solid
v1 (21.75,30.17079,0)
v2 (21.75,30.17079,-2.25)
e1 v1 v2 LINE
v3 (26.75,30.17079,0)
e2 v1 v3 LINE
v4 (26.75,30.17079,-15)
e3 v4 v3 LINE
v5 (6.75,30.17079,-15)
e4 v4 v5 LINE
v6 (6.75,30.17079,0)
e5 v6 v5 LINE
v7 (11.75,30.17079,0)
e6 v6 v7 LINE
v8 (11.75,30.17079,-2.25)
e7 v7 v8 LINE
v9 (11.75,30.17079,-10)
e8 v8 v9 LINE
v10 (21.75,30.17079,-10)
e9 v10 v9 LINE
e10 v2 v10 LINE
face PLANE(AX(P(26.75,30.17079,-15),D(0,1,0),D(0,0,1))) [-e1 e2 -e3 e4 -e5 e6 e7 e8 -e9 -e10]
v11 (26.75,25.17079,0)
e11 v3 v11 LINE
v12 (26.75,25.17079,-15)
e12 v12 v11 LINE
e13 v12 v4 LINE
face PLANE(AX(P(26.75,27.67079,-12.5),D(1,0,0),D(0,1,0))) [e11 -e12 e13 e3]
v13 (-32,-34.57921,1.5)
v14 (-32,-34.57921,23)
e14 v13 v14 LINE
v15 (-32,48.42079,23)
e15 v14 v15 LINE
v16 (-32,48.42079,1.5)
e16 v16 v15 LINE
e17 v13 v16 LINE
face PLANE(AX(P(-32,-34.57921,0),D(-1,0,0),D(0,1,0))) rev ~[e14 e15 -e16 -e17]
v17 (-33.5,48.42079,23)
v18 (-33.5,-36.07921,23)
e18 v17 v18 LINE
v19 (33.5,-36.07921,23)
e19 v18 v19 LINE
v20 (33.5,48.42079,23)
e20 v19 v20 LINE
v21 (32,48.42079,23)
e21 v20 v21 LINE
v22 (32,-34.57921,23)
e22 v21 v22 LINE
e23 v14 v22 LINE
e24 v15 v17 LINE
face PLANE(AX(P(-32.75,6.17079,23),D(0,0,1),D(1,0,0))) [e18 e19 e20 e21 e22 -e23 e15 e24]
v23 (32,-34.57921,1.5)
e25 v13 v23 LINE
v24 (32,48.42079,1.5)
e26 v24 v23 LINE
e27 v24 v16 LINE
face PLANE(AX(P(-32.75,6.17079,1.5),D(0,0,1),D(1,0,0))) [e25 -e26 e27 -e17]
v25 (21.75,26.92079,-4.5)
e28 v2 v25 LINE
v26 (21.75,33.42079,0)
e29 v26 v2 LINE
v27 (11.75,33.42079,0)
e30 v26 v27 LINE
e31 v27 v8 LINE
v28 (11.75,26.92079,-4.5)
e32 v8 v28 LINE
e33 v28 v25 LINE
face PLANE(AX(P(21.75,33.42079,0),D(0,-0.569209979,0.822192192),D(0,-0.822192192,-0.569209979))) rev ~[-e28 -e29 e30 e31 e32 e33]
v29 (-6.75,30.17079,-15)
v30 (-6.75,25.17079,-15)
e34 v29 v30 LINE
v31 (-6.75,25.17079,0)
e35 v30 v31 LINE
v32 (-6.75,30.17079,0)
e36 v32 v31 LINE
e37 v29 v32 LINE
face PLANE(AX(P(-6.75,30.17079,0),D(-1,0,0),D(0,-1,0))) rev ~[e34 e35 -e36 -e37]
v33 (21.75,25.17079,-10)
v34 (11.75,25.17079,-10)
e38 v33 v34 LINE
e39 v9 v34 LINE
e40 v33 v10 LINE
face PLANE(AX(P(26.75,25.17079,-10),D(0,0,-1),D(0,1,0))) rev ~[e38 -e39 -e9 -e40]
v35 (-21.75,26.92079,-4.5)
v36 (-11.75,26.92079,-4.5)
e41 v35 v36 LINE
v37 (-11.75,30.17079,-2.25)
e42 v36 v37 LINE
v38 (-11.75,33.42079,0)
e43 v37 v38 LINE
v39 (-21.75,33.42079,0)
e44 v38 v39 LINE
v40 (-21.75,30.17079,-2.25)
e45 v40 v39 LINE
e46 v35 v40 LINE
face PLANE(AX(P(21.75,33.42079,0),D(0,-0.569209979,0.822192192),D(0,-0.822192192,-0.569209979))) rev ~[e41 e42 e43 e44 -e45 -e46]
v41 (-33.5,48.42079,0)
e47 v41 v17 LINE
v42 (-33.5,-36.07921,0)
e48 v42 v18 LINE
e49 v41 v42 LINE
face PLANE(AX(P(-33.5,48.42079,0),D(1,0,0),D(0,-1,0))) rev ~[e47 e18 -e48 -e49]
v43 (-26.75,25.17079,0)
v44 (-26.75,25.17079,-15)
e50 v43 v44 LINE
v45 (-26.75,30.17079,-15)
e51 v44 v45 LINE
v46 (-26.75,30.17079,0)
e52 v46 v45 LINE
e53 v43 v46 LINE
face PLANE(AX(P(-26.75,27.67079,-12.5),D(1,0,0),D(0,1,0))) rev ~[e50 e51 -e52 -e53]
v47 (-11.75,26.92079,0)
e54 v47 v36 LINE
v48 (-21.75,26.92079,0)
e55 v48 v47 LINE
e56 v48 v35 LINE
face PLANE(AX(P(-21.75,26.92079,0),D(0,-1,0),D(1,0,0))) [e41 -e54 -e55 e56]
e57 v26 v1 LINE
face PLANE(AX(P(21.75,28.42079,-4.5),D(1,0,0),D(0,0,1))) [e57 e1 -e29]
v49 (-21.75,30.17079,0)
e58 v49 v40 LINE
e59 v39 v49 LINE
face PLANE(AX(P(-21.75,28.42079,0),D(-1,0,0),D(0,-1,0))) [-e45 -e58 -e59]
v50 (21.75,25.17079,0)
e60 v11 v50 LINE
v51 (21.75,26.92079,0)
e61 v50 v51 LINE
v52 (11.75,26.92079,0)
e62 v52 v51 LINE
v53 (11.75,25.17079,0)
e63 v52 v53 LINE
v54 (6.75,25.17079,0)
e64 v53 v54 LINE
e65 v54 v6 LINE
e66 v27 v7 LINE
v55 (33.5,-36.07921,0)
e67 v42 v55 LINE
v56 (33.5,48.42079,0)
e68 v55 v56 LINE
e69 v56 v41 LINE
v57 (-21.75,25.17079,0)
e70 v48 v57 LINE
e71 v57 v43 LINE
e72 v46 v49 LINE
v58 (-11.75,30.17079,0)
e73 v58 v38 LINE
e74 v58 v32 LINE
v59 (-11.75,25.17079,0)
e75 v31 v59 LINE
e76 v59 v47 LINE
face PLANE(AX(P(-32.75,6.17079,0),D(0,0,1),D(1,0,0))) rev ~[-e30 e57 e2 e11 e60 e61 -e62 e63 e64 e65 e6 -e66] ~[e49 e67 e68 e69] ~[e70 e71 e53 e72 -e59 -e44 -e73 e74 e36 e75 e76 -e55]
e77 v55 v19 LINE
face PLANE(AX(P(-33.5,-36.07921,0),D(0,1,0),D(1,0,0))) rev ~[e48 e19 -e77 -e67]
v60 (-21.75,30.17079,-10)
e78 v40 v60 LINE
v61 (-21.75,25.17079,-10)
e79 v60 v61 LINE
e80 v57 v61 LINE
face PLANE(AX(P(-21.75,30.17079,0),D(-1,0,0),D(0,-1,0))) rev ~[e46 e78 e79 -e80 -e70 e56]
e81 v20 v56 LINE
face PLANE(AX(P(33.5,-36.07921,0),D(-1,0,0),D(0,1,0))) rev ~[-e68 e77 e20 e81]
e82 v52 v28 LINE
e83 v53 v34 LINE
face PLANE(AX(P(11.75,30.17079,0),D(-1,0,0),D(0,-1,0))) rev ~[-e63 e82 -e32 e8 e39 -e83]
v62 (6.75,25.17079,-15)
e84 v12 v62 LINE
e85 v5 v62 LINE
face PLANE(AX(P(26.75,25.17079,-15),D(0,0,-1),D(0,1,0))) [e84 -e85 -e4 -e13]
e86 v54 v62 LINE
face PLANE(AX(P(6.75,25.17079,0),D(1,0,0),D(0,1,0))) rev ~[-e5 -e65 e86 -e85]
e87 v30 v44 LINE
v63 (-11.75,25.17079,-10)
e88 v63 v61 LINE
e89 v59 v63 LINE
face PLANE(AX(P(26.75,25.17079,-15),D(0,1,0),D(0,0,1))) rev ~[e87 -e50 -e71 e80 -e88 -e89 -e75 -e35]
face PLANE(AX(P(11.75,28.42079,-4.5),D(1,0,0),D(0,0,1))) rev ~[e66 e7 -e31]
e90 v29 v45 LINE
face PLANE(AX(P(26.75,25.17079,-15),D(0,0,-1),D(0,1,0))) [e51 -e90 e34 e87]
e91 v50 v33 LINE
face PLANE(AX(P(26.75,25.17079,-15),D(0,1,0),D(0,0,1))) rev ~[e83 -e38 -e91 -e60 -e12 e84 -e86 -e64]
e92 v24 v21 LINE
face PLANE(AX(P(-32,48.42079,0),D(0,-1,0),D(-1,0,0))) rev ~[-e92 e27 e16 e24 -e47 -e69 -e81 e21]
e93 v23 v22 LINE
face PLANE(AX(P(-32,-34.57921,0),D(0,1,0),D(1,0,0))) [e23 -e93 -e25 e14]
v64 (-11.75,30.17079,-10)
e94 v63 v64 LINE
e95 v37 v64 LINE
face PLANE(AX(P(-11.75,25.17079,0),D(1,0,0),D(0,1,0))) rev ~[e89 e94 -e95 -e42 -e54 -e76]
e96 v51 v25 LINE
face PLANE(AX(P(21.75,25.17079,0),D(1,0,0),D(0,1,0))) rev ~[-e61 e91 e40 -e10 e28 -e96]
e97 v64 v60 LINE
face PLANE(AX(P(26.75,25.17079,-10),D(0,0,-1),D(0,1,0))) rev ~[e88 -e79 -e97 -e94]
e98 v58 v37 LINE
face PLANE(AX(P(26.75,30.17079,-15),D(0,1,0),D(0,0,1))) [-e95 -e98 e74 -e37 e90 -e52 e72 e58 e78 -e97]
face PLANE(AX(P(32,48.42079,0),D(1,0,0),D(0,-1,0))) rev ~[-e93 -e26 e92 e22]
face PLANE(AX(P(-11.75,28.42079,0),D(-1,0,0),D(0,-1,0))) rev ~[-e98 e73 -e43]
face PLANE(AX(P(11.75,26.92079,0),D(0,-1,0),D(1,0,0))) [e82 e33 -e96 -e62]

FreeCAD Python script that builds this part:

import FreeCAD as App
import Part
import Sketcher
Q = App.Units.Quantity

doc = App.newDocument("Part")
body = doc.addObject("PartDesign::Body", "Body")

# Sketch on XY plane
sketch1 = body.newObject("Sketcher::SketchObject", "Sketch")
sketch1.AttachmentSupport = (doc.getObject("XY_Plane"), [""])
sketch1.MapMode = "FlatFace"
sketch1.addGeometry([
    Part.LineSegment(App.Vector(-32, 48.4, 0), App.Vector(-33.5, 48.4, 0)),  # 0
    Part.LineSegment(App.Vector(-33.5, 48.4, 0), App.Vector(-33.5, -36.1, 0)),  # 1
    Part.LineSegment(App.Vector(-33.5, -36.1, 0), App.Vector(33.5, -36.1, 0)),  # 2
    Part.LineSegment(App.Vector(33.5, -36.1, 0), App.Vector(33.5, 48.4, 0)),  # 3
    Part.LineSegment(App.Vector(33.5, 48.4, 0), App.Vector(32, 48.4, 0)),  # 4
    Part.LineSegment(App.Vector(32, 48.4, 0), App.Vector(32, -34.6, 0)),  # 5
    Part.LineSegment(App.Vector(32, -34.6, 0), App.Vector(-32, -34.6, 0)),  # 6
    Part.LineSegment(App.Vector(-32, -34.6, 0), App.Vector(-32, 48.4, 0)),  # 7
], False)
sketch1.addConstraint([
    Sketcher.Constraint("Coincident", 0, 2, 1, 1),
    Sketcher.Constraint("Coincident", 1, 2, 2, 1),
    Sketcher.Constraint("Coincident", 2, 2, 3, 1),
    Sketcher.Constraint("Coincident", 3, 2, 4, 1),
    Sketcher.Constraint("Coincident", 4, 2, 5, 1),
    Sketcher.Constraint("Coincident", 5, 2, 6, 1),
    Sketcher.Constraint("Coincident", 6, 2, 7, 1),
    Sketcher.Constraint("Coincident", 7, 2, 0, 1),
    Sketcher.Constraint("Horizontal", 0),
    Sketcher.Constraint("Vertical", 1),
    Sketcher.Constraint("Horizontal", 2),
    Sketcher.Constraint("Vertical", 3),
    Sketcher.Constraint("Horizontal", 4),
    Sketcher.Constraint("Vertical", 5),
    Sketcher.Constraint("Horizontal", 6),
    Sketcher.Constraint("Vertical", 7),
    Sketcher.Constraint("Symmetric", 0, 2, 3, 2, -2),
    Sketcher.Constraint("Equal", 0, 4),
    Sketcher.Constraint("DistanceX", 2, 1, 2, 2, Q("67 mm")),
    Sketcher.Constraint("DistanceX", 6, 2, 6, 1, Q("64 mm")),
    Sketcher.Constraint("DistanceY", 5, 2, 5, 1, Q("83 mm")),
    Sketcher.Constraint("DistanceY", 1, 2, 1, 1, Q("84.5 mm")),
    Sketcher.Constraint("DistanceY", -1, 1, 0, 2, Q("48.42079 mm")),
])
pad1 = body.newObject("PartDesign::Pad", "Pad")
pad1.Profile = sketch1
pad1.Length = 23

# Sketch on XY plane
sketch2 = body.newObject("Sketcher::SketchObject", "Sketch001")
sketch2.AttachmentSupport = (doc.getObject("XY_Plane"), [""])
sketch2.MapMode = "FlatFace"
sketch2.addGeometry([
    Part.LineSegment(App.Vector(-34, 48, 0), App.Vector(-34, -36, 0)),
    Part.LineSegment(App.Vector(-34, -36, 0), App.Vector(34, -36, 0)),
    Part.LineSegment(App.Vector(34, -36, 0), App.Vector(34, 48, 0)),
    Part.LineSegment(App.Vector(34, 48, 0), App.Vector(-34, 48, 0)),
], False)
sketch2.addConstraint([
    Sketcher.Constraint("Coincident", 0, 2, 1, 1),
    Sketcher.Constraint("Coincident", 1, 2, 2, 1),
    Sketcher.Constraint("Coincident", 2, 2, 3, 1),
    Sketcher.Constraint("Coincident", 3, 2, 0, 1),
    Sketcher.Constraint("Vertical", 0),
    Sketcher.Constraint("Horizontal", 1),
    Sketcher.Constraint("Vertical", 2),
    Sketcher.Constraint("Horizontal", 3),
    Sketcher.Constraint("DistanceX", 1, 1, 1, 2, Q("67 mm")),
    Sketcher.Constraint("DistanceY", 0, 2, 0, 1, Q("84.5 mm")),
    Sketcher.Constraint("DistanceX", 0, 2, -1, 1, Q("33.5 mm")),
    Sketcher.Constraint("DistanceY", 0, 2, -1, 1, Q("36.07921 mm")),
])
pad2 = body.newObject("PartDesign::Pad", "Pad001")
pad2.Profile = sketch2
pad2.Length = 1.5

# Sketch on XY plane
sketch3 = body.newObject("Sketcher::SketchObject", "Sketch002")
sketch3.AttachmentSupport = (doc.getObject("XY_Plane"), [""])
sketch3.MapMode = "FlatFace"
sketch3.addGeometry([
    Part.LineSegment(App.Vector(11.8, 26.9, 0), App.Vector(11.8, 28.4, 0)),  # 0
    Part.LineSegment(App.Vector(11.8, 28.4, 0), App.Vector(21.8, 28.4, 0)),  # 1
    Part.LineSegment(App.Vector(21.8, 28.4, 0), App.Vector(21.8, 26.9, 0)),  # 2
    Part.LineSegment(App.Vector(21.8, 26.9, 0), App.Vector(11.8, 26.9, 0)),  # 3
    Part.LineSegment(App.Vector(-21.8, 26.9, 0), App.Vector(-21.8, 28.4, 0)),  # 4
    Part.LineSegment(App.Vector(-21.8, 28.4, 0), App.Vector(-11.8, 28.4, 0)),  # 5
    Part.LineSegment(App.Vector(-11.8, 28.4, 0), App.Vector(-11.8, 26.9, 0)),  # 6
    Part.LineSegment(App.Vector(-11.8, 26.9, 0), App.Vector(-21.8, 26.9, 0)),  # 7
], False)
sketch3.addConstraint([
    Sketcher.Constraint("Coincident", 0, 2, 1, 1),
    Sketcher.Constraint("Coincident", 1, 2, 2, 1),
    Sketcher.Constraint("Coincident", 2, 2, 3, 1),
    Sketcher.Constraint("Coincident", 3, 2, 0, 1),
    Sketcher.Constraint("Coincident", 4, 2, 5, 1),
    Sketcher.Constraint("Coincident", 5, 2, 6, 1),
    Sketcher.Constraint("Coincident", 6, 2, 7, 1),
    Sketcher.Constraint("Coincident", 7, 2, 4, 1),
    Sketcher.Constraint("Vertical", 0),
    Sketcher.Constraint("Horizontal", 1),
    Sketcher.Constraint("Vertical", 2),
    Sketcher.Constraint("Horizontal", 3),
    Sketcher.Constraint("Vertical", 4),
    Sketcher.Constraint("Horizontal", 5),
    Sketcher.Constraint("Vertical", 6),
    Sketcher.Constraint("Horizontal", 7),
    Sketcher.Constraint("Symmetric", 1, 2, 4, 2, -2),
    Sketcher.Constraint("Symmetric", 3, 2, 6, 2, -2),
    Sketcher.Constraint("DistanceX", 1, 1, 1, 2, Q("10 mm")),
    Sketcher.Constraint("DistanceY", 0, 1, 0, 2, Q("1.5 mm")),
    Sketcher.Constraint("DistanceX", 4, 2, 0, 2, Q("33.5 mm")),
    Sketcher.Constraint("DistanceY", -1, 1, 0, 2, Q("28.42079 mm")),
])
pad3 = body.newObject("PartDesign::Pad", "Pad002")
pad3.Profile = sketch3
pad3.Length = 4.5
pad3.Reversed = True

# Sketch on XZ plane
sketch4 = body.newObject("Sketcher::SketchObject", "Sketch003")
sketch4.AttachmentSupport = (doc.getObject("XZ_Plane"), [""])
sketch4.MapMode = "FlatFace"
sketch4.AttachmentOffset = App.Placement(App.Vector(0, 0, -28.42079), App.Rotation())
sketch4.addGeometry([
    Part.LineSegment(App.Vector(21.8, 0, 0), App.Vector(21.8, -4.5, 0)),  # 0
    Part.LineSegment(App.Vector(21.8, -4.5, 0), App.Vector(11.8, -4.5, 0)),  # 1
    Part.LineSegment(App.Vector(11.8, -4.5, 0), App.Vector(11.8, 0, 0)),  # 2
    Part.LineSegment(App.Vector(11.8, 0, 0), App.Vector(21.8, 0, 0)),  # 3
    Part.LineSegment(App.Vector(-11.8, 0, 0), App.Vector(-11.8, -4.5, 0)),  # 4
    Part.LineSegment(App.Vector(-11.8, -4.5, 0), App.Vector(-21.8, -4.5, 0)),  # 5
    Part.LineSegment(App.Vector(-21.8, -4.5, 0), App.Vector(-21.8, 0, 0)),  # 6
    Part.LineSegment(App.Vector(-21.8, 0, 0), App.Vector(-11.8, 0, 0)),  # 7
], False)
sketch4.addConstraint([
    Sketcher.Constraint("Coincident", 0, 2, 1, 1),
    Sketcher.Constraint("Coincident", 1, 2, 2, 1),
    Sketcher.Constraint("Coincident", 2, 2, 3, 1),
    Sketcher.Constraint("Coincident", 3, 2, 0, 1),
    Sketcher.Constraint("Coincident", 4, 2, 5, 1),
    Sketcher.Constraint("Coincident", 5, 2, 6, 1),
    Sketcher.Constraint("Coincident", 6, 2, 7, 1),
    Sketcher.Constraint("Coincident", 7, 2, 4, 1),
    Sketcher.Constraint("Vertical", 0),
    Sketcher.Constraint("Horizontal", 1),
    Sketcher.Constraint("Vertical", 2),
    Sketcher.Constraint("Horizontal", 3),
    Sketcher.Constraint("Vertical", 4),
    Sketcher.Constraint("Horizontal", 5),
    Sketcher.Constraint("Vertical", 6),
    Sketcher.Constraint("Horizontal", 7),
    Sketcher.Constraint("Symmetric", 3, 2, 6, 2, -1, 1),
    Sketcher.Constraint("Symmetric", 1, 2, 4, 2, -2),
    Sketcher.Constraint("PointOnObject", 2, 2, -1),
    Sketcher.Constraint("DistanceX", 1, 2, 1, 1, Q("10 mm")),
    Sketcher.Constraint("DistanceY", 0, 2, 0, 1, Q("4.5 mm")),
    Sketcher.Constraint("DistanceX", 4, 2, 1, 2, Q("23.5 mm")),
])
pad4 = body.newObject("PartDesign::Pad", "Pad003")
pad4.Profile = sketch4
pad4.Length = 5
pad4.Reversed = True

# Sketch on YZ plane
sketch5 = body.newObject("Sketcher::SketchObject", "Sketch004")
sketch5.AttachmentSupport = (doc.getObject("YZ_Plane"), [""])
sketch5.MapMode = "FlatFace"
sketch5.AttachmentOffset = App.Placement(App.Vector(0, 0, 21.75), App.Rotation())
sketch5.addGeometry([
    Part.LineSegment(App.Vector(33.4, -4.5, 0), App.Vector(33.4, 0, 0)),
    Part.LineSegment(App.Vector(33.4, 0, 0), App.Vector(26.9, -4.5, 0)),
    Part.LineSegment(App.Vector(26.9, -4.5, 0), App.Vector(33.4, -4.5, 0)),
], False)
sketch5.addConstraint([
    Sketcher.Constraint("Coincident", 0, 2, 1, 1),
    Sketcher.Constraint("Coincident", 1, 2, 2, 1),
    Sketcher.Constraint("Coincident", 2, 2, 0, 1),
    Sketcher.Constraint("Vertical", 0),
    Sketcher.Constraint("Horizontal", 2),
    Sketcher.Constraint("PointOnObject", 0, 2, -1),
    Sketcher.Constraint("DistanceX", 2, 1, 2, 2, Q("6.5 mm")),
    Sketcher.Constraint("DistanceY", 0, 1, 0, 2, Q("4.5 mm")),
    Sketcher.Constraint("DistanceX", -1, 1, 0, 2, Q("33.42079 mm")),
])
pocket1 = body.newObject("PartDesign::Pocket", "Pocket")
pocket1.Profile = sketch5
pocket1.Length = 50

# Sketch on XY plane
sketch6 = body.newObject("Sketcher::SketchObject", "Sketch005")
sketch6.AttachmentSupport = (doc.getObject("XY_Plane"), [""])
sketch6.MapMode = "FlatFace"
sketch6.addGeometry([
    Part.LineSegment(App.Vector(-22, 25, 0), App.Vector(-27, 25, 0)),  # 0
    Part.LineSegment(App.Vector(-27, 25, 0), App.Vector(-27, 30, 0)),  # 1
    Part.LineSegment(App.Vector(-27, 30, 0), App.Vector(-22, 30, 0)),  # 2
    Part.LineSegment(App.Vector(-22, 30, 0), App.Vector(-22, 25, 0)),  # 3
    Part.LineSegment(App.Vector(-12, 25, 0), App.Vector(-12, 30, 0)),  # 4
    Part.LineSegment(App.Vector(-12, 30, 0), App.Vector(-7, 30, 0)),  # 5
    Part.LineSegment(App.Vector(-7, 30, 0), App.Vector(-7, 25, 0)),  # 6
    Part.LineSegment(App.Vector(-7, 25, 0), App.Vector(-12, 25, 0)),  # 7
    Part.LineSegment(App.Vector(12, 25, 0), App.Vector(7, 25, 0)),  # 8
    Part.LineSegment(App.Vector(7, 25, 0), App.Vector(7, 30, 0)),  # 9
    Part.LineSegment(App.Vector(7, 30, 0), App.Vector(12, 30, 0)),  # 10
    Part.LineSegment(App.Vector(12, 30, 0), App.Vector(12, 25, 0)),  # 11
    Part.LineSegment(App.Vector(22, 25, 0), App.Vector(22, 30, 0)),  # 12
    Part.LineSegment(App.Vector(22, 30, 0), App.Vector(27, 30, 0)),  # 13
    Part.LineSegment(App.Vector(27, 30, 0), App.Vector(27, 25, 0)),  # 14
    Part.LineSegment(App.Vector(27, 25, 0), App.Vector(22, 25, 0)),  # 15
], False)
sketch6.addConstraint([
    Sketcher.Constraint("Coincident", 0, 2, 1, 1),
    Sketcher.Constraint("Coincident", 1, 2, 2, 1),
    Sketcher.Constraint("Coincident", 2, 2, 3, 1),
    Sketcher.Constraint("Coincident", 3, 2, 0, 1),
    Sketcher.Constraint("Coincident", 4, 2, 5, 1),
    Sketcher.Constraint("Coincident", 5, 2, 6, 1),
    Sketcher.Constraint("Coincident", 6, 2, 7, 1),
    Sketcher.Constraint("Coincident", 7, 2, 4, 1),
    Sketcher.Constraint("Coincident", 8, 2, 9, 1),
    Sketcher.Constraint("Coincident", 9, 2, 10, 1),
    Sketcher.Constraint("Coincident", 10, 2, 11, 1),
    Sketcher.Constraint("Coincident", 11, 2, 8, 1),
    Sketcher.Constraint("Coincident", 12, 2, 13, 1),
    Sketcher.Constraint("Coincident", 13, 2, 14, 1),
    Sketcher.Constraint("Coincident", 14, 2, 15, 1),
    Sketcher.Constraint("Coincident", 15, 2, 12, 1),
    Sketcher.Constraint("Horizontal", 0),
    Sketcher.Constraint("Vertical", 1),
    Sketcher.Constraint("Horizontal", 2),
    Sketcher.Constraint("Vertical", 3),
    Sketcher.Constraint("Vertical", 4),
    Sketcher.Constraint("Horizontal", 5),
    Sketcher.Constraint("Vertical", 6),
    Sketcher.Constraint("Horizontal", 7),
    Sketcher.Constraint("Horizontal", 8),
    Sketcher.Constraint("Vertical", 9),
    Sketcher.Constraint("Horizontal", 10),
    Sketcher.Constraint("Vertical", 11),
    Sketcher.Constraint("Vertical", 12),
    Sketcher.Constraint("Horizontal", 13),
    Sketcher.Constraint("Vertical", 14),
    Sketcher.Constraint("Horizontal", 15),
    Sketcher.Constraint("Symmetric", 6, 2, 8, 2, -2),
    Sketcher.Constraint("Symmetric", 4, 2, 10, 2, -2),
    Sketcher.Constraint("Symmetric", 2, 2, 12, 2, -2),
    Sketcher.Constraint("Symmetric", 0, 2, 14, 2, -2),
    Sketcher.Constraint("Horizontal", 2, 2, 4, 2),
    Sketcher.Constraint("Horizontal", 3, 2, 6, 2),
    Sketcher.Constraint("Equal", 2, 5),
    Sketcher.Constraint("Equal", 15, 1),
    Sketcher.Constraint("DistanceX", 0, 2, 0, 1, Q("5 mm")),
    Sketcher.Constraint("DistanceX", 2, 2, 4, 2, Q("10 mm")),
    Sketcher.Constraint("DistanceX", 6, 2, 8, 2, Q("13.5 mm")),
    Sketcher.Constraint("DistanceY", -1, 1, 0, 2, Q("25.17079 mm")),
])
pad5 = body.newObject("PartDesign::Pad", "Pad004")
pad5.Profile = sketch6
pad5.Length = 10
pad5.Reversed = True

# Sketch on YZ plane
sketch7 = body.newObject("Sketcher::SketchObject", "Sketch006")
sketch7.AttachmentSupport = (doc.getObject("YZ_Plane"), [""])
sketch7.MapMode = "FlatFace"
sketch7.AttachmentOffset = App.Placement(App.Vector(0, 0, 26.75), App.Rotation())
sketch7.addGeometry([
    Part.LineSegment(App.Vector(25, -10, 0), App.Vector(25, -15, 0)),
    Part.LineSegment(App.Vector(25, -15, 0), App.Vector(30, -15, 0)),
    Part.LineSegment(App.Vector(30, -15, 0), App.Vector(30, -10, 0)),
    Part.LineSegment(App.Vector(30, -10, 0), App.Vector(25, -10, 0)),
], False)
sketch7.addConstraint([
    Sketcher.Constraint("Coincident", 0, 2, 1, 1),
    Sketcher.Constraint("Coincident", 1, 2, 2, 1),
    Sketcher.Constraint("Coincident", 2, 2, 3, 1),
    Sketcher.Constraint("Coincident", 3, 2, 0, 1),
    Sketcher.Constraint("Vertical", 0),
    Sketcher.Constraint("Horizontal", 1),
    Sketcher.Constraint("Vertical", 2),
    Sketcher.Constraint("Horizontal", 3),
    Sketcher.Constraint("Equal", 3, 0),
    Sketcher.Constraint("DistanceX", 1, 1, 1, 2, Q("5 mm")),
    Sketcher.Constraint("DistanceY", 0, 2, -1, 1, Q("15 mm")),
    Sketcher.Constraint("DistanceX", -1, 1, 0, 2, Q("25.17079 mm")),
])
pad6 = body.newObject("PartDesign::Pad", "Pad005")
pad6.Profile = sketch7
pad6.Length = 53.5
pad6.Reversed = True

# Sketch on XZ plane
sketch8 = body.newObject("Sketcher::SketchObject", "Sketch007")
sketch8.AttachmentSupport = (doc.getObject("XZ_Plane"), [""])
sketch8.MapMode = "FlatFace"
sketch8.AttachmentOffset = App.Placement(App.Vector(0, 0, -30.17079), App.Rotation())
sketch8.addGeometry([
    Part.LineSegment(App.Vector(7, -10, 0), App.Vector(7, -15, 0)),
    Part.LineSegment(App.Vector(7, -15, 0), App.Vector(-7, -15, 0)),
    Part.LineSegment(App.Vector(-7, -15, 0), App.Vector(-7, -10, 0)),
    Part.LineSegment(App.Vector(-7, -10, 0), App.Vector(7, -10, 0)),
], False)
sketch8.addConstraint([
    Sketcher.Constraint("Coincident", 0, 2, 1, 1),
    Sketcher.Constraint("Coincident", 1, 2, 2, 1),
    Sketcher.Constraint("Coincident", 2, 2, 3, 1),
    Sketcher.Constraint("Coincident", 3, 2, 0, 1),
    Sketcher.Constraint("Vertical", 0),
    Sketcher.Constraint("Horizontal", 1),
    Sketcher.Constraint("Vertical", 2),
    Sketcher.Constraint("Horizontal", 3),
    Sketcher.Constraint("DistanceY", 0, 2, 0, 1, Q("5 mm")),
    Sketcher.Constraint("DistanceX", 1, 2, 1, 1, Q("13.5 mm")),
    Sketcher.Constraint("DistanceY", 0, 2, -1, 1, Q("15 mm")),
    Sketcher.Constraint("DistanceX", -1, 1, 0, 2, Q("6.75 mm")),
])
pocket2 = body.newObject("PartDesign::Pocket", "Pocket001")
pocket2.Profile = sketch8
pocket2.Length = 25
pocket2.Reversed = True

doc.recompute()
